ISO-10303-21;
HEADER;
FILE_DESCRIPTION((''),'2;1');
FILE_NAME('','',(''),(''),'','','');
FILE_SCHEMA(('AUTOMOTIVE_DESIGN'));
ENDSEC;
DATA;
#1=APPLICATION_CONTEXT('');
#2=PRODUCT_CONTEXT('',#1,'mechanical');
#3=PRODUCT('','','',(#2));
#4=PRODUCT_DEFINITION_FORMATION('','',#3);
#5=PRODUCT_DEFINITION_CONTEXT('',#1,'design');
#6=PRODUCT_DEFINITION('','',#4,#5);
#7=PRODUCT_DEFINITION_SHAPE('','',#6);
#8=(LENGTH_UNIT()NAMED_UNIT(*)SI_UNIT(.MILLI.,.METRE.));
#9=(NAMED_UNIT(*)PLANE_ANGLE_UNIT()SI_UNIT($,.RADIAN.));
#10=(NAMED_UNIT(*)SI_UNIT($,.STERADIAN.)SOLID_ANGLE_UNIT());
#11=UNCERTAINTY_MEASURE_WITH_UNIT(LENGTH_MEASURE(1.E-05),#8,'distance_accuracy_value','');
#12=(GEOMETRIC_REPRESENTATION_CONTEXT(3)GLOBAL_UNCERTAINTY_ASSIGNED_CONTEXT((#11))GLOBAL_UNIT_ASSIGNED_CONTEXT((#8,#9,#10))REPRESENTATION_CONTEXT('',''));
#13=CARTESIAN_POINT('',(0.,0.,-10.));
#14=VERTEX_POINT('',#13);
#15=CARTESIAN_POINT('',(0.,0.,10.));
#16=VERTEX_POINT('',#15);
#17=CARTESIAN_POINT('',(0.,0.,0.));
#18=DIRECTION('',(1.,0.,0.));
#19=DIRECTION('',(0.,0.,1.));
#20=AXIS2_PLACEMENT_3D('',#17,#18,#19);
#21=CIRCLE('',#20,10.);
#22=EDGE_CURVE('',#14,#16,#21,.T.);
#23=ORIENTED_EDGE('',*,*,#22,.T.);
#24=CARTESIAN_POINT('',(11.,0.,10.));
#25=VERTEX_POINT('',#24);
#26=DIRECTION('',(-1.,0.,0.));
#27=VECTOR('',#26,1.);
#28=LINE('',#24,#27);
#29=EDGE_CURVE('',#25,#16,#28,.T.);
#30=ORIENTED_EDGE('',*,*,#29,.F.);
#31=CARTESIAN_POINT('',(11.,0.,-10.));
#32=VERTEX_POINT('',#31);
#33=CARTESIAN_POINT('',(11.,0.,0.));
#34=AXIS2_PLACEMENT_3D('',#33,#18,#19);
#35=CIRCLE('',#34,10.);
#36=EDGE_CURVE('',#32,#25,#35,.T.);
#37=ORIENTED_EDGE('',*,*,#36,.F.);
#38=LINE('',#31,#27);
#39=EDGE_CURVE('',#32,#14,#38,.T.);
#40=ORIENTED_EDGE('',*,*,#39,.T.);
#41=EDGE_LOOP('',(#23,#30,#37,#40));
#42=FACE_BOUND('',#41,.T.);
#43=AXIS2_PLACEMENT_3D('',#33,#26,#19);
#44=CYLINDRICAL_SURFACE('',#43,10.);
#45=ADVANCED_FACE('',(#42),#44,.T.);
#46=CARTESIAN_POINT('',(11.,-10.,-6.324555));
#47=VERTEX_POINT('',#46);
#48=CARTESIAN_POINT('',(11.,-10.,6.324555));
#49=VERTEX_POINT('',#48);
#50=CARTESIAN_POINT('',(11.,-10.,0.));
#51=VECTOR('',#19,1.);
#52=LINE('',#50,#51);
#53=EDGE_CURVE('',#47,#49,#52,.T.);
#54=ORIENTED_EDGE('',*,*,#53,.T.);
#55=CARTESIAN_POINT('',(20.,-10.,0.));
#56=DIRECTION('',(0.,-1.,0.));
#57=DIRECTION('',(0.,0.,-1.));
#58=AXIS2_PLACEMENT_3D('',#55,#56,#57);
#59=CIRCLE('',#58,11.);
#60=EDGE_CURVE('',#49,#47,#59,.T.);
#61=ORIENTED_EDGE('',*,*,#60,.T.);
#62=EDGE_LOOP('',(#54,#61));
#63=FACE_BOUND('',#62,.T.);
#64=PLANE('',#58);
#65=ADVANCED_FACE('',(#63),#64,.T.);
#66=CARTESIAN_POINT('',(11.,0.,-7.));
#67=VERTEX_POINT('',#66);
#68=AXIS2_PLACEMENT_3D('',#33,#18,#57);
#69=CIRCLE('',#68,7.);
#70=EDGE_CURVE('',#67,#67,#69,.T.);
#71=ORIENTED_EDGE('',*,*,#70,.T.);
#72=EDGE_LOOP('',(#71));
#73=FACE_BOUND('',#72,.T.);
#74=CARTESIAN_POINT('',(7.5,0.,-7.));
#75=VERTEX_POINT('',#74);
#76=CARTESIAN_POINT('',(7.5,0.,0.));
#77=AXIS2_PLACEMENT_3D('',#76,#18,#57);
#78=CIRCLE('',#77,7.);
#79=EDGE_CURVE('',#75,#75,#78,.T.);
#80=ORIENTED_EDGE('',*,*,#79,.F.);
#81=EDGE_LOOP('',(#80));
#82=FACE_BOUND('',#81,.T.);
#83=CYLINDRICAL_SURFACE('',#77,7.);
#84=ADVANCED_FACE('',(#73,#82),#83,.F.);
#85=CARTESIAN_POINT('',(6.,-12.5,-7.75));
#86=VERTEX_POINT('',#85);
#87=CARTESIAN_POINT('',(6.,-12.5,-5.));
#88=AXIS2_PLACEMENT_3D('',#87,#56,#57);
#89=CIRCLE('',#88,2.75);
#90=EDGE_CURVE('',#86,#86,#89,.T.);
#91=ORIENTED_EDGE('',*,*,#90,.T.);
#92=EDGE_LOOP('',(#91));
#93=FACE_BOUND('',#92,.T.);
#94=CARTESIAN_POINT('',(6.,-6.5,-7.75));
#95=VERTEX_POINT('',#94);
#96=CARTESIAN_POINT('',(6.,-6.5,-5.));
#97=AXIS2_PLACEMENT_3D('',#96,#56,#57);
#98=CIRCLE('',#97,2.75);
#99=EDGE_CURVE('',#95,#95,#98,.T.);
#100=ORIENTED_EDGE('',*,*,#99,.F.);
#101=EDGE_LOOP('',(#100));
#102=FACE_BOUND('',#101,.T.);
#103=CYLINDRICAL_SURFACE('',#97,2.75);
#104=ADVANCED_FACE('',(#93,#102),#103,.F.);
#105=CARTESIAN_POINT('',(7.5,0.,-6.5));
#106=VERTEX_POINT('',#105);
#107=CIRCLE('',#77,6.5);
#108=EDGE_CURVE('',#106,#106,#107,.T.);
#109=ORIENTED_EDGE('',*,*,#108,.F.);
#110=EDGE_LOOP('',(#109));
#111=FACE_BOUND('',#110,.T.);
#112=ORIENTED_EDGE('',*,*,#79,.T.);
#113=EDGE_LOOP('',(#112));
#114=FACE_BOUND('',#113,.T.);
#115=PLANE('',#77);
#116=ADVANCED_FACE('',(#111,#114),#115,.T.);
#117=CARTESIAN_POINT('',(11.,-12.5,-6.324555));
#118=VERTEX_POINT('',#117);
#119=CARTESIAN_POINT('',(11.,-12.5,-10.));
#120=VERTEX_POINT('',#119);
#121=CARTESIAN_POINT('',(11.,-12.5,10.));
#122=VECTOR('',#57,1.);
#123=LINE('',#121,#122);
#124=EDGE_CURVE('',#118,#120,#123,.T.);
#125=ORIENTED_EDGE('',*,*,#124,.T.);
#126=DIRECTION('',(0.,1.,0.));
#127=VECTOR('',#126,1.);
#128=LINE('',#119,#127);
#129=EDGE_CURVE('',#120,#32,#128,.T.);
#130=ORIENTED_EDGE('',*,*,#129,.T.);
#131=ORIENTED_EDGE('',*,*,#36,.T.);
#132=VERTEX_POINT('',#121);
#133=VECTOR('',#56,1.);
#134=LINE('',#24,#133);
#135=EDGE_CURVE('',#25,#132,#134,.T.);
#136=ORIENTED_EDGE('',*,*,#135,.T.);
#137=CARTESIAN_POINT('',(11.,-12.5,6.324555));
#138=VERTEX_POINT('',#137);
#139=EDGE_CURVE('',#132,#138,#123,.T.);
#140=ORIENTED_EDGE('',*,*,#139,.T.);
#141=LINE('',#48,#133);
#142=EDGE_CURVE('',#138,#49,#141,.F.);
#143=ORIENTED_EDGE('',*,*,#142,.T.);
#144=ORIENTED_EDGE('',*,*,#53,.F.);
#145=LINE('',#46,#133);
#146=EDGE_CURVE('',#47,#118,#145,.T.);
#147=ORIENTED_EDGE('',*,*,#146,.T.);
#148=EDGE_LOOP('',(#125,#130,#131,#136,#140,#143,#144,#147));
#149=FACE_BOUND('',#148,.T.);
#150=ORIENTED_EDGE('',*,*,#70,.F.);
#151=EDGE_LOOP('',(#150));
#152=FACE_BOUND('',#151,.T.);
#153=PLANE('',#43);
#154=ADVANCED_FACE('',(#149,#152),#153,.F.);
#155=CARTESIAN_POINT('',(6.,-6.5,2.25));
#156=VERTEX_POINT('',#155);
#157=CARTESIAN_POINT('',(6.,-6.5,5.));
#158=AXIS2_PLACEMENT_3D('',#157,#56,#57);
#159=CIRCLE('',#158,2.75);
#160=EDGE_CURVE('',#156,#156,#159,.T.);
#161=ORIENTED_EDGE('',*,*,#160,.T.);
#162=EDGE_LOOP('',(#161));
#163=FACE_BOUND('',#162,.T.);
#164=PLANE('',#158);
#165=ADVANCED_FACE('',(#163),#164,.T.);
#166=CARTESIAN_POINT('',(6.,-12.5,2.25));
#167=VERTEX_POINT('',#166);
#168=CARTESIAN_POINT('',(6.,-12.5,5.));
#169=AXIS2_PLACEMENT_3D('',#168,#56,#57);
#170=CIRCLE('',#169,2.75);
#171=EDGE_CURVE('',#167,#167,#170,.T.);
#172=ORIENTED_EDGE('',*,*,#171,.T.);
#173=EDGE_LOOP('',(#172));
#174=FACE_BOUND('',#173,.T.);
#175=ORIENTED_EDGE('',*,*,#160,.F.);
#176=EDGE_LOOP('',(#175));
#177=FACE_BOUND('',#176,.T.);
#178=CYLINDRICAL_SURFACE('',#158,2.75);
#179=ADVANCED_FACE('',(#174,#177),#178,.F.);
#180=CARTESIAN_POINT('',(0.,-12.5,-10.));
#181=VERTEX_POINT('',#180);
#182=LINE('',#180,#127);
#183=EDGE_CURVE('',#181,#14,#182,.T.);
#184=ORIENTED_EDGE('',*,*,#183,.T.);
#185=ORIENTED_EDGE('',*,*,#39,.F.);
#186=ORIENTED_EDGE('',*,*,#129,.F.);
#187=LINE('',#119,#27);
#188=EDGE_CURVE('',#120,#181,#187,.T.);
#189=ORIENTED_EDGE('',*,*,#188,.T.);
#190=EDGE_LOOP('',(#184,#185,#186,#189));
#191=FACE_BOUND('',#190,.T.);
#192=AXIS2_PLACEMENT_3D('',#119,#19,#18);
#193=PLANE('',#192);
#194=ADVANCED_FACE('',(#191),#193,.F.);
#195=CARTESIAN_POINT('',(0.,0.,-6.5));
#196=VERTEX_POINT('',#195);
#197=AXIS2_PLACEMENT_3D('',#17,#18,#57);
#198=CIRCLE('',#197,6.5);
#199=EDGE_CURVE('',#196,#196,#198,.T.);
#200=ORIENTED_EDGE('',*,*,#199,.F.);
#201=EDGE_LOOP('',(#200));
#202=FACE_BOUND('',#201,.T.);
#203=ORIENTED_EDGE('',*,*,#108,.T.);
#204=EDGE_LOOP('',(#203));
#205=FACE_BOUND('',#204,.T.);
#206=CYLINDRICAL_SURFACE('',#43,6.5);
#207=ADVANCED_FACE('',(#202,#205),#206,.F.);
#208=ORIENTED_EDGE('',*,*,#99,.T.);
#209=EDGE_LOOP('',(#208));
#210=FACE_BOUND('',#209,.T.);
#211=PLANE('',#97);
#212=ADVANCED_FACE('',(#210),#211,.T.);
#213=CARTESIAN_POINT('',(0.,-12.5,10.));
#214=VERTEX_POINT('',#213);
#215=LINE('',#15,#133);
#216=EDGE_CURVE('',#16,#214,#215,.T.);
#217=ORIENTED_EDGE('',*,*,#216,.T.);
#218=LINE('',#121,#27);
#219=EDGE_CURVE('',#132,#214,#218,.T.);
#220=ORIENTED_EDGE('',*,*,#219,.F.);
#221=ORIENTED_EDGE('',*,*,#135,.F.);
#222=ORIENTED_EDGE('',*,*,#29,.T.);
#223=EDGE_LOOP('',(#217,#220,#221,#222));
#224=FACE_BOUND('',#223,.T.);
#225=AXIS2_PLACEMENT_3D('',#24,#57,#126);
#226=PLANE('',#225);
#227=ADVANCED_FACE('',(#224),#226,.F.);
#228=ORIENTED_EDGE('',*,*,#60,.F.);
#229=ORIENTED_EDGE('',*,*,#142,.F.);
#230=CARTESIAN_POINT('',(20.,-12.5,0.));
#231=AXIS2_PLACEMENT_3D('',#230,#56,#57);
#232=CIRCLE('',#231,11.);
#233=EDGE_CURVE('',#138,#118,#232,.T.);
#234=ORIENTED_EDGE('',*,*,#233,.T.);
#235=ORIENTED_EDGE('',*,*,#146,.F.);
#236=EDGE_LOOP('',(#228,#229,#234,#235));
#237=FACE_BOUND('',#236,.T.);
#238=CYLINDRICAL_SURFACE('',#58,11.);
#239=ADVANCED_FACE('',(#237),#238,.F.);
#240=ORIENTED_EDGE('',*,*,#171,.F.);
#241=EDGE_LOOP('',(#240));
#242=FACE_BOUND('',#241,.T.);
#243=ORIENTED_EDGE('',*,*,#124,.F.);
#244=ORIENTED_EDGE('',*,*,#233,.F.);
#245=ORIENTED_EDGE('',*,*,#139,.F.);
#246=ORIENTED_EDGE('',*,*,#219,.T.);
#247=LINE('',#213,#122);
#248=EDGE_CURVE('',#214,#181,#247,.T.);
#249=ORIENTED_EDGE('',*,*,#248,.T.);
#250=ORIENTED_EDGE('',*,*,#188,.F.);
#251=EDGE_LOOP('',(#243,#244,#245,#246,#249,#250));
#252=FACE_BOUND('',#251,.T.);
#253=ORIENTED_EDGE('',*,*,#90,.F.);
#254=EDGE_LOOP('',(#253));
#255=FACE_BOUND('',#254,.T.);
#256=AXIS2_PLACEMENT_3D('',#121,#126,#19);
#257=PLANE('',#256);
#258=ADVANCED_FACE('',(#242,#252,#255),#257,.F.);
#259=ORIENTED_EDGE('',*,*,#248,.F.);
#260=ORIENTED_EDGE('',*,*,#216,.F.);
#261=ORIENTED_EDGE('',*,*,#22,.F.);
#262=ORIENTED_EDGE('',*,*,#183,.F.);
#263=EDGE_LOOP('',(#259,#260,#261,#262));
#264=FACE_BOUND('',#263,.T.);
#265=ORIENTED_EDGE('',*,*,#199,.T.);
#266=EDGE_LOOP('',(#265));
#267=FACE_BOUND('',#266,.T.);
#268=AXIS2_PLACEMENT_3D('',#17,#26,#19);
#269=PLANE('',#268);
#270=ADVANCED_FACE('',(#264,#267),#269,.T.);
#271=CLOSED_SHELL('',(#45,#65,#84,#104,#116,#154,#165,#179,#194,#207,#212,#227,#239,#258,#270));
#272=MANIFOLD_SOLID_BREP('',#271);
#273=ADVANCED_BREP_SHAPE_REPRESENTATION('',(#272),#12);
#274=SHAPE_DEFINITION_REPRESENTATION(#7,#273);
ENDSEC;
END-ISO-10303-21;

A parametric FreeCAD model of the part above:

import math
import FreeCAD as App
import Part
import Sketcher
from FreeCAD import Vector

doc = App.newDocument("Part")
body = doc.addObject("PartDesign::Body", "Body")

# Sketch on YZ plane
sketch1 = doc.addObject("Sketcher::SketchObject", "Sketch")
body.addObject(sketch1)
sketch1.AttachmentSupport = (doc.YZ_Plane, [""])
sketch1.MapMode = "FlatFace"
sketch1.addGeometry([
    Part.LineSegment(Vector(0, 10, 0), Vector(-12, 10, 0)),  # 0
    Part.LineSegment(Vector(-12, 10, 0), Vector(-12, -10, 0)),  # 1
    Part.LineSegment(Vector(-12, -10, 0), Vector(0, -10, 0)),  # 2
    Part.ArcOfCircle(Part.Circle(Vector(0, 0, 0), Vector(0, 0, 1), 10), math.radians(-90), math.radians(90)),  # 3
    Part.Circle(Vector(0, 0, 0), Vector(0, 0, 1), 6),  # 4
], False)
sketch1.addConstraint([
    Sketcher.Constraint("Coincident", 0, 2, 1, 1),
    Sketcher.Constraint("Coincident", 1, 2, 2, 1),
    Sketcher.Constraint("Tangent", 2, 2, 3, 1),
    Sketcher.Constraint("Tangent", 3, 2, 0, 1),
    Sketcher.Constraint("Horizontal", 0),
    Sketcher.Constraint("Vertical", 1),
    Sketcher.Constraint("Horizontal", 2),
    Sketcher.Constraint("Coincident", 3, 3, -1, 1),
    Sketcher.Constraint("Coincident", 4, 3, -1, 1),
    Sketcher.Constraint("Diameter", 4, 13.0),
    Sketcher.Constraint("Radius", 3, 10.0),
    Sketcher.Constraint("DistanceX", 0, 2, 0, 1, 12.5),
])
pad1 = doc.addObject("PartDesign::Pad", "Pad")
body.addObject(pad1)
pad1.Profile = sketch1
pad1.Length = 11

# Sketch on YZ plane
sketch2 = doc.addObject("Sketcher::SketchObject", "Sketch001")
body.addObject(sketch2)
sketch2.AttachmentSupport = (doc.YZ_Plane, [""])
sketch2.MapMode = "FlatFace"
sketch2.AttachmentOffset = App.Placement(Vector(0, 0, 11), App.Rotation())
sketch2.addGeometry(Part.Circle(Vector(0, 0, 0), Vector(0, 0, 1), 7), False)
sketch2.addConstraint([
    Sketcher.Constraint("Coincident", 0, 3, -1, 1),
    Sketcher.Constraint("Diameter", 0, 14.0),
])
pocket1 = doc.addObject("PartDesign::Pocket", "Pocket")
body.addObject(pocket1)
pocket1.Profile = sketch2
pocket1.Length = 3.5

# Sketch on XZ plane
sketch3 = doc.addObject("Sketcher::SketchObject", "Sketch002")
body.addObject(sketch3)
sketch3.AttachmentSupport = (doc.XZ_Plane, [""])
sketch3.MapMode = "FlatFace"
sketch3.AttachmentOffset = App.Placement(Vector(0, 0, 12.5), App.Rotation())
sketch3.addGeometry([
    Part.Circle(Vector(6, 5, 0), Vector(0, 0, 1), 2.8),
    Part.Circle(Vector(6, -5, 0), Vector(0, 0, 1), 2.8),
], False)
sketch3.addConstraint([
    Sketcher.Constraint("Equal", 0, 1),
    Sketcher.Constraint("Symmetric", 0, 3, 1, 3, -1),
    Sketcher.Constraint("Diameter", 0, 5.5),
    Sketcher.Constraint("DistanceX", -1, 1, 0, 3, 6.0),
    Sketcher.Constraint("DistanceY", -1, 1, 0, 3, 5.0),
])
pocket2 = doc.addObject("PartDesign::Pocket", "Pocket001")
body.addObject(pocket2)
pocket2.Profile = sketch3
pocket2.Length = 6

# Sketch on XZ plane
sketch4 = doc.addObject("Sketcher::SketchObject", "Sketch003")
body.addObject(sketch4)
sketch4.AttachmentSupport = (doc.XZ_Plane, [""])
sketch4.MapMode = "FlatFace"
sketch4.AttachmentOffset = App.Placement(Vector(0, 0, 12.5), App.Rotation())
sketch4.addGeometry(Part.Circle(Vector(20, 0, 0), Vector(0, 0, 1), 11), False)
sketch4.addConstraint([
    Sketcher.Constraint("PointOnObject", 0, 3, -1),
    Sketcher.Constraint("Diameter", 0, 22.0),
    Sketcher.Constraint("DistanceX", -1, 1, 0, 3, 20.0),
])
pocket3 = doc.addObject("PartDesign::Pocket", "Pocket002")
body.addObject(pocket3)
pocket3.Profile = sketch4
pocket3.Length = 2.5

doc.recompute()
